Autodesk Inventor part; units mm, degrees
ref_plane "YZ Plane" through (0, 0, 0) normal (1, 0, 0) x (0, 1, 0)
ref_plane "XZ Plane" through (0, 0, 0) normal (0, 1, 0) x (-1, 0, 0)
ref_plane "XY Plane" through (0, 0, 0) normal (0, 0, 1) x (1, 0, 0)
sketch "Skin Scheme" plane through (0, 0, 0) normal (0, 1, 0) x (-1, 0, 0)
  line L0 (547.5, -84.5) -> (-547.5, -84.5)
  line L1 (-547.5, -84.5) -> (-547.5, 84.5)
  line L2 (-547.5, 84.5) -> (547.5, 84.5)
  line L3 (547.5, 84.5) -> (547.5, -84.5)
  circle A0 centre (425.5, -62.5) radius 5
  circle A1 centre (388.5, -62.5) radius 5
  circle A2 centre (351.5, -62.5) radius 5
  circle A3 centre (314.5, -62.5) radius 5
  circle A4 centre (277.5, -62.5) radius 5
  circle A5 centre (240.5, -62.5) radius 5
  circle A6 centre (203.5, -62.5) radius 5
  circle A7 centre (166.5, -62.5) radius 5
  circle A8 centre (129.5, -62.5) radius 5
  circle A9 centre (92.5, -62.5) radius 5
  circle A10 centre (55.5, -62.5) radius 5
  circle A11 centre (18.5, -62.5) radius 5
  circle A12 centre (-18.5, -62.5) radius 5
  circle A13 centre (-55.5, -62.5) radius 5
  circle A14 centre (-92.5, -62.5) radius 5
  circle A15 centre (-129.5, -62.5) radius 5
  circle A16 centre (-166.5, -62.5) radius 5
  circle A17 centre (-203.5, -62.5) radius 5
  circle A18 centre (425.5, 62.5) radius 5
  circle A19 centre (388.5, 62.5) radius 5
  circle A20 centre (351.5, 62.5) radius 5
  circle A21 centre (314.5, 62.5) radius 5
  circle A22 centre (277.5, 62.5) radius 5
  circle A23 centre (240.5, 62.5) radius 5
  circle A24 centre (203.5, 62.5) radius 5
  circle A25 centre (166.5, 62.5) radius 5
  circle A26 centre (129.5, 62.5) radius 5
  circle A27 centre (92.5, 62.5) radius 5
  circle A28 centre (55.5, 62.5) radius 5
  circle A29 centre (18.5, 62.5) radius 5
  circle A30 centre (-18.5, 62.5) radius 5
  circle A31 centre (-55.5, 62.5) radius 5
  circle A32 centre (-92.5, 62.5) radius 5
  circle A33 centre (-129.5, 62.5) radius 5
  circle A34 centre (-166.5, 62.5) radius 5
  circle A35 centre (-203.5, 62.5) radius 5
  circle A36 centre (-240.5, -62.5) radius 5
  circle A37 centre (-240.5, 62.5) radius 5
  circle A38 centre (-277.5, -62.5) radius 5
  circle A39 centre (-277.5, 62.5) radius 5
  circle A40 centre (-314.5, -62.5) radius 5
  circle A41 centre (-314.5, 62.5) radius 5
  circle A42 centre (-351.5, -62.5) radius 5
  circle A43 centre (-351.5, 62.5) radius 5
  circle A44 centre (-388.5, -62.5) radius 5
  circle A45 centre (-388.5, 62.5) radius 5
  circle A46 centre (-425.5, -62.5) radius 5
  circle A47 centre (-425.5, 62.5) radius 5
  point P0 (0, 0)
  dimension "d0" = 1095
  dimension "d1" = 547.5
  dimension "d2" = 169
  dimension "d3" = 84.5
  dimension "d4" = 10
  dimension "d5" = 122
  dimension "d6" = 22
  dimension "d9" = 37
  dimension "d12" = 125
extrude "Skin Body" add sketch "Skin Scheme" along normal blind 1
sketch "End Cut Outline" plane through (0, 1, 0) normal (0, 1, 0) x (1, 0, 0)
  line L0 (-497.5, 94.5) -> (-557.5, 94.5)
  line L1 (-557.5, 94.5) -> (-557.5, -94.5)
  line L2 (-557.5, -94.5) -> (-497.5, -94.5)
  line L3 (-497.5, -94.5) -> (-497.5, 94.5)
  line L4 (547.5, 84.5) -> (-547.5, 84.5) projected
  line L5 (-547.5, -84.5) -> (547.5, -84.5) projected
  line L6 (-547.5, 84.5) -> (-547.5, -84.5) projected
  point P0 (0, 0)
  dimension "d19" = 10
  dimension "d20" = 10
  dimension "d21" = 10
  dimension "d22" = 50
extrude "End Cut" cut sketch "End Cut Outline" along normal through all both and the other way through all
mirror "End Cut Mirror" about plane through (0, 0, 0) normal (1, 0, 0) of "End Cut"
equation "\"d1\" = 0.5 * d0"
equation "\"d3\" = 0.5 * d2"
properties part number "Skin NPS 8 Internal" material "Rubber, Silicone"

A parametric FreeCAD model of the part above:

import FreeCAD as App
import Part
import Sketcher

V = App.Vector
Q = App.Units.Quantity

doc = App.newDocument("Part")
body = doc.addObject("PartDesign::Body", "Body")

# Sketch on XZ plane
sketch1 = body.newObject("Sketcher::SketchObject", "Sketch")
sketch1.AttachmentSupport = (doc.getObject("XZ_Plane"), [""])
sketch1.MapMode = "FlatFace"
sketch1.addGeometry([
    Part.LineSegment(V(548, -84, 0), V(-548, -84, 0)),  # 0
    Part.LineSegment(V(-548, -84, 0), V(-548, 84, 0)),  # 1
    Part.LineSegment(V(-548, 84, 0), V(548, 84, 0)),  # 2
    Part.LineSegment(V(548, 84, 0), V(548, -84, 0)),  # 3
    Part.Circle(V(426, -62, 0), V(0, 0, 1), 5),  # 4
    Part.Circle(V(388, -62, 0), V(0, 0, 1), 5),  # 5
    Part.Circle(V(352, -62, 0), V(0, 0, 1), 5),  # 6
    Part.Circle(V(314, -62, 0), V(0, 0, 1), 5),  # 7
    Part.Circle(V(278, -62, 0), V(0, 0, 1), 5),  # 8
    Part.Circle(V(240, -62, 0), V(0, 0, 1), 5),  # 9
    Part.Circle(V(204, -62, 0), V(0, 0, 1), 5),  # 10
    Part.Circle(V(166, -62, 0), V(0, 0, 1), 5),  # 11
    Part.Circle(V(130, -62, 0), V(0, 0, 1), 5),  # 12
    Part.Circle(V(92, -62, 0), V(0, 0, 1), 5),  # 13
    Part.Circle(V(56, -62, 0), V(0, 0, 1), 5),  # 14
    Part.Circle(V(18, -62, 0), V(0, 0, 1), 5),  # 15
    Part.Circle(V(-18, -62, 0), V(0, 0, 1), 5),  # 16
    Part.Circle(V(-56, -62, 0), V(0, 0, 1), 5),  # 17
    Part.Circle(V(-92, -62, 0), V(0, 0, 1), 5),  # 18
    Part.Circle(V(-130, -62, 0), V(0, 0, 1), 5),  # 19
    Part.Circle(V(-166, -62, 0), V(0, 0, 1), 5),  # 20
    Part.Circle(V(-204, -62, 0), V(0, 0, 1), 5),  # 21
    Part.Circle(V(-240, -62, 0), V(0, 0, 1), 5),  # 22
    Part.Circle(V(-278, -62, 0), V(0, 0, 1), 5),  # 23
    Part.Circle(V(-314, -62, 0), V(0, 0, 1), 5),  # 24
    Part.Circle(V(-352, -62, 0), V(0, 0, 1), 5),  # 25
    Part.Circle(V(-388, -62, 0), V(0, 0, 1), 5),  # 26
    Part.Circle(V(-426, -62, 0), V(0, 0, 1), 5),  # 27
    Part.Circle(V(426, 62, 0), V(0, 0, 1), 5),  # 28
    Part.Circle(V(388, 62, 0), V(0, 0, 1), 5),  # 29
    Part.Circle(V(352, 62, 0), V(0, 0, 1), 5),  # 30
    Part.Circle(V(314, 62, 0), V(0, 0, 1), 5),  # 31
    Part.Circle(V(278, 62, 0), V(0, 0, 1), 5),  # 32
    Part.Circle(V(240, 62, 0), V(0, 0, 1), 5),  # 33
    Part.Circle(V(204, 62, 0), V(0, 0, 1), 5),  # 34
    Part.Circle(V(166, 62, 0), V(0, 0, 1), 5),  # 35
    Part.Circle(V(130, 62, 0), V(0, 0, 1), 5),  # 36
    Part.Circle(V(92, 62, 0), V(0, 0, 1), 5),  # 37
    Part.Circle(V(56, 62, 0), V(0, 0, 1), 5),  # 38
    Part.Circle(V(18, 62, 0), V(0, 0, 1), 5),  # 39
    Part.Circle(V(-18, 62, 0), V(0, 0, 1), 5),  # 40
    Part.Circle(V(-56, 62, 0), V(0, 0, 1), 5),  # 41
    Part.Circle(V(-92, 62, 0), V(0, 0, 1), 5),  # 42
    Part.Circle(V(-130, 62, 0), V(0, 0, 1), 5),  # 43
    Part.Circle(V(-166, 62, 0), V(0, 0, 1), 5),  # 44
    Part.Circle(V(-204, 62, 0), V(0, 0, 1), 5),  # 45
    Part.Circle(V(-240, 62, 0), V(0, 0, 1), 5),  # 46
    Part.Circle(V(-278, 62, 0), V(0, 0, 1), 5),  # 47
    Part.Circle(V(-314, 62, 0), V(0, 0, 1), 5),  # 48
    Part.Circle(V(-352, 62, 0), V(0, 0, 1), 5),  # 49
    Part.Circle(V(-388, 62, 0), V(0, 0, 1), 5),  # 50
    Part.Circle(V(-426, 62, 0), V(0, 0, 1), 5),  # 51
], False)
sketch1.addConstraint([
    Sketcher.Constraint("Coincident", 0, 2, 1, 1),
    Sketcher.Constraint("Coincident", 1, 2, 2, 1),
    Sketcher.Constraint("Coincident", 2, 2, 3, 1),
    Sketcher.Constraint("Coincident", 3, 2, 0, 1),
    Sketcher.Constraint("Horizontal", 0),
    Sketcher.Constraint("Vertical", 1),
    Sketcher.Constraint("Horizontal", 2),
    Sketcher.Constraint("Vertical", 3),
    Sketcher.Constraint("Equal", 4, 5),
    Sketcher.Constraint("Equal", 5, 6),
    Sketcher.Constraint("Equal", 6, 7),
    Sketcher.Constraint("Equal", 7, 8),
    Sketcher.Constraint("Equal", 8, 9),
    Sketcher.Constraint("Equal", 9, 10),
    Sketcher.Constraint("Equal", 10, 11),
    Sketcher.Constraint("Equal", 11, 12),
    Sketcher.Constraint("Equal", 12, 13),
    Sketcher.Constraint("Equal", 13, 14),
    Sketcher.Constraint("Equal", 14, 15),
    Sketcher.Constraint("Equal", 15, 16),
    Sketcher.Constraint("Equal", 16, 17),
    Sketcher.Constraint("Equal", 17, 18),
    Sketcher.Constraint("Equal", 18, 19),
    Sketcher.Constraint("Equal", 19, 20),
    Sketcher.Constraint("Equal", 20, 21),
    Sketcher.Constraint("Equal", 21, 22),
    Sketcher.Constraint("Equal", 22, 23),
    Sketcher.Constraint("Equal", 23, 24),
    Sketcher.Constraint("Equal", 24, 25),
    Sketcher.Constraint("Equal", 25, 26),
    Sketcher.Constraint("Equal", 26, 27),
    Sketcher.Constraint("Equal", 27, 28),
    Sketcher.Constraint("Equal", 28, 29),
    Sketcher.Constraint("Equal", 29, 30),
    Sketcher.Constraint("Equal", 30, 31),
    Sketcher.Constraint("Equal", 31, 32),
    Sketcher.Constraint("Equal", 32, 33),
    Sketcher.Constraint("Equal", 33, 34),
    Sketcher.Constraint("Equal", 34, 35),
    Sketcher.Constraint("Equal", 35, 36),
    Sketcher.Constraint("Equal", 36, 37),
    Sketcher.Constraint("Equal", 37, 38),
    Sketcher.Constraint("Equal", 38, 39),
    Sketcher.Constraint("Equal", 39, 40),
    Sketcher.Constraint("Equal", 40, 41),
    Sketcher.Constraint("Equal", 41, 42),
    Sketcher.Constraint("Equal", 42, 43),
    Sketcher.Constraint("Equal", 43, 44),
    Sketcher.Constraint("Equal", 44, 45),
    Sketcher.Constraint("Equal", 45, 46),
    Sketcher.Constraint("Equal", 46, 47),
    Sketcher.Constraint("Equal", 47, 48),
    Sketcher.Constraint("Equal", 48, 49),
    Sketcher.Constraint("Equal", 49, 50),
    Sketcher.Constraint("Equal", 50, 51),
    Sketcher.Constraint("Symmetric", 27, 3, 28, 3, -1, 1),
    Sketcher.Constraint("Symmetric", 26, 3, 29, 3, -1, 1),
    Sketcher.Constraint("Symmetric", 25, 3, 30, 3, -1, 1),
    Sketcher.Constraint("Symmetric", 24, 3, 31, 3, -1, 1),
    Sketcher.Constraint("Symmetric", 23, 3, 32, 3, -1, 1),
    Sketcher.Constraint("Symmetric", 22, 3, 33, 3, -1, 1),
    Sketcher.Constraint("Symmetric", 21, 3, 34, 3, -1, 1),
    Sketcher.Constraint("Symmetric", 20, 3, 35, 3, -1, 1),
    Sketcher.Constraint("Symmetric", 19, 3, 36, 3, -1, 1),
    Sketcher.Constraint("Symmetric", 18, 3, 37, 3, -1, 1),
    Sketcher.Constraint("Symmetric", 17, 3, 38, 3, -1, 1),
    Sketcher.Constraint("Symmetric", 16, 3, 39, 3, -1, 1),
    Sketcher.Constraint("Symmetric", 15, 3, 40, 3, -1, 1),
    Sketcher.Constraint("Symmetric", 14, 3, 41, 3, -1, 1),
    Sketcher.Constraint("Symmetric", 13, 3, 42, 3, -1, 1),
    Sketcher.Constraint("Symmetric", 12, 3, 43, 3, -1, 1),
    Sketcher.Constraint("Symmetric", 11, 3, 44, 3, -1, 1),
    Sketcher.Constraint("Symmetric", 10, 3, 45, 3, -1, 1),
    Sketcher.Constraint("Symmetric", 9, 3, 46, 3, -1, 1),
    Sketcher.Constraint("Symmetric", 8, 3, 47, 3, -1, 1),
    Sketcher.Constraint("Symmetric", 7, 3, 48, 3, -1, 1),
    Sketcher.Constraint("Symmetric", 6, 3, 49, 3, -1, 1),
    Sketcher.Constraint("Symmetric", 5, 3, 50, 3, -1, 1),
    Sketcher.Constraint("Symmetric", 4, 3, 51, 3, -1, 1),
    Sketcher.Constraint("Symmetric", 0, 2, 2, 2, -1, 1),
    Sketcher.Constraint("Symmetric", 15, 3, 16, 3, -2),
    Sketcher.Constraint("Symmetric", 14, 3, 17, 3, -2),
    Sketcher.Constraint("Symmetric", 13, 3, 18, 3, -2),
    Sketcher.Constraint("Symmetric", 12, 3, 19, 3, -2),
    Sketcher.Constraint("Symmetric", 11, 3, 20, 3, -2),
    Sketcher.Constraint("Symmetric", 10, 3, 21, 3, -2),
    Sketcher.Constraint("Symmetric", 9, 3, 22, 3, -2),
    Sketcher.Constraint("Symmetric", 8, 3, 23, 3, -2),
    Sketcher.Constraint("Symmetric", 7, 3, 24, 3, -2),
    Sketcher.Constraint("Symmetric", 6, 3, 25, 3, -2),
    Sketcher.Constraint("Symmetric", 5, 3, 26, 3, -2),
    Sketcher.Constraint("Symmetric", 4, 3, 27, 3, -2),
    Sketcher.Constraint("Horizontal", 4, 3, 5, 3),
    Sketcher.Constraint("Horizontal", 5, 3, 6, 3),
    Sketcher.Constraint("Horizontal", 6, 3, 7, 3),
    Sketcher.Constraint("Horizontal", 7, 3, 8, 3),
    Sketcher.Constraint("Horizontal", 8, 3, 9, 3),
    Sketcher.Constraint("Horizontal", 9, 3, 10, 3),
    Sketcher.Constraint("Horizontal", 10, 3, 11, 3),
    Sketcher.Constraint("Horizontal", 11, 3, 12, 3),
    Sketcher.Constraint("Horizontal", 12, 3, 13, 3),
    Sketcher.Constraint("Horizontal", 13, 3, 14, 3),
    Sketcher.Constraint("Horizontal", 14, 3, 15, 3),
    Sketcher.Constraint("Diameter", 4, Q("10 mm")),
    Sketcher.Constraint("DistanceX", 0, 2, 0, 1, Q("1095 mm")),
    Sketcher.Constraint("DistanceY", 1, 1, 1, 2, Q("169 mm")),
    Sketcher.Constraint("DistanceX", 5, 3, 4, 3, Q("37 mm")),
    Sketcher.Constraint("DistanceX", 6, 3, 5, 3, Q("37 mm")),
    Sketcher.Constraint("DistanceX", 7, 3, 6, 3, Q("37 mm")),
    Sketcher.Constraint("DistanceX", 8, 3, 7, 3, Q("37 mm")),
    Sketcher.Constraint("DistanceX", 9, 3, 8, 3, Q("37 mm")),
    Sketcher.Constraint("DistanceX", 10, 3, 9, 3, Q("37 mm")),
    Sketcher.Constraint("DistanceX", 11, 3, 10, 3, Q("37 mm")),
    Sketcher.Constraint("DistanceX", 12, 3, 11, 3, Q("37 mm")),
    Sketcher.Constraint("DistanceX", 13, 3, 12, 3, Q("37 mm")),
    Sketcher.Constraint("DistanceX", 14, 3, 13, 3, Q("37 mm")),
    Sketcher.Constraint("DistanceX", 15, 3, 14, 3, Q("37 mm")),
    Sketcher.Constraint("DistanceX", 16, 3, 15, 3, Q("37 mm")),
    Sketcher.Constraint("DistanceY", 4, 3, 28, 3, Q("125 mm")),
])
pad1 = body.newObject("PartDesign::Pad", "Pad")
pad1.Profile = sketch1
pad1.Length = 1
pad1.Reversed = True

# Sketch on XZ plane
sketch2 = body.newObject("Sketcher::SketchObject", "Sketch001")
sketch2.AttachmentSupport = (doc.getObject("XZ_Plane"), [""])
sketch2.MapMode = "FlatFace"
sketch2.AttachmentOffset = App.Placement(V(0, 0, -1), App.Rotation())
sketch2.addGeometry([
    Part.LineSegment(V(-498, -94, 0), V(-558, -94, 0)),
    Part.LineSegment(V(-558, -94, 0), V(-558, 94, 0)),
    Part.LineSegment(V(-558, 94, 0), V(-498, 94, 0)),
    Part.LineSegment(V(-498, 94, 0), V(-498, -94, 0)),
], False)
sketch2.addConstraint([
    Sketcher.Constraint("Coincident", 0, 2, 1, 1),
    Sketcher.Constraint("Coincident", 1, 2, 2, 1),
    Sketcher.Constraint("Coincident", 2, 2, 3, 1),
    Sketcher.Constraint("Coincident", 3, 2, 0, 1),
    Sketcher.Constraint("Horizontal", 0),
    Sketcher.Constraint("Vertical", 1),
    Sketcher.Constraint("Horizontal", 2),
    Sketcher.Constraint("Vertical", 3),
    Sketcher.Constraint("DistanceX", 0, 2, 0, 1, Q("60 mm")),
    Sketcher.Constraint("DistanceY", 1, 1, 1, 2, Q("189 mm")),
    Sketcher.Constraint("DistanceX", 0, 2, -1, 1, Q("557.5 mm")),
    Sketcher.Constraint("DistanceY", 0, 2, -1, 1, Q("94.5 mm")),
])
pocket1 = body.newObject("PartDesign::Pocket", "Pocket")
pocket1.Profile = sketch2
pocket1.Type = "ThroughAll"
pocket1.Midplane = True
doc.recompute()

mirrored = body.newObject("PartDesign::Mirrored", "Mirrored")
mirrored.Originals = [pocket1]
mirrored.MirrorPlane = (doc.getObject("YZ_Plane"), [""])
body.Tip = mirrored

doc.recompute()
